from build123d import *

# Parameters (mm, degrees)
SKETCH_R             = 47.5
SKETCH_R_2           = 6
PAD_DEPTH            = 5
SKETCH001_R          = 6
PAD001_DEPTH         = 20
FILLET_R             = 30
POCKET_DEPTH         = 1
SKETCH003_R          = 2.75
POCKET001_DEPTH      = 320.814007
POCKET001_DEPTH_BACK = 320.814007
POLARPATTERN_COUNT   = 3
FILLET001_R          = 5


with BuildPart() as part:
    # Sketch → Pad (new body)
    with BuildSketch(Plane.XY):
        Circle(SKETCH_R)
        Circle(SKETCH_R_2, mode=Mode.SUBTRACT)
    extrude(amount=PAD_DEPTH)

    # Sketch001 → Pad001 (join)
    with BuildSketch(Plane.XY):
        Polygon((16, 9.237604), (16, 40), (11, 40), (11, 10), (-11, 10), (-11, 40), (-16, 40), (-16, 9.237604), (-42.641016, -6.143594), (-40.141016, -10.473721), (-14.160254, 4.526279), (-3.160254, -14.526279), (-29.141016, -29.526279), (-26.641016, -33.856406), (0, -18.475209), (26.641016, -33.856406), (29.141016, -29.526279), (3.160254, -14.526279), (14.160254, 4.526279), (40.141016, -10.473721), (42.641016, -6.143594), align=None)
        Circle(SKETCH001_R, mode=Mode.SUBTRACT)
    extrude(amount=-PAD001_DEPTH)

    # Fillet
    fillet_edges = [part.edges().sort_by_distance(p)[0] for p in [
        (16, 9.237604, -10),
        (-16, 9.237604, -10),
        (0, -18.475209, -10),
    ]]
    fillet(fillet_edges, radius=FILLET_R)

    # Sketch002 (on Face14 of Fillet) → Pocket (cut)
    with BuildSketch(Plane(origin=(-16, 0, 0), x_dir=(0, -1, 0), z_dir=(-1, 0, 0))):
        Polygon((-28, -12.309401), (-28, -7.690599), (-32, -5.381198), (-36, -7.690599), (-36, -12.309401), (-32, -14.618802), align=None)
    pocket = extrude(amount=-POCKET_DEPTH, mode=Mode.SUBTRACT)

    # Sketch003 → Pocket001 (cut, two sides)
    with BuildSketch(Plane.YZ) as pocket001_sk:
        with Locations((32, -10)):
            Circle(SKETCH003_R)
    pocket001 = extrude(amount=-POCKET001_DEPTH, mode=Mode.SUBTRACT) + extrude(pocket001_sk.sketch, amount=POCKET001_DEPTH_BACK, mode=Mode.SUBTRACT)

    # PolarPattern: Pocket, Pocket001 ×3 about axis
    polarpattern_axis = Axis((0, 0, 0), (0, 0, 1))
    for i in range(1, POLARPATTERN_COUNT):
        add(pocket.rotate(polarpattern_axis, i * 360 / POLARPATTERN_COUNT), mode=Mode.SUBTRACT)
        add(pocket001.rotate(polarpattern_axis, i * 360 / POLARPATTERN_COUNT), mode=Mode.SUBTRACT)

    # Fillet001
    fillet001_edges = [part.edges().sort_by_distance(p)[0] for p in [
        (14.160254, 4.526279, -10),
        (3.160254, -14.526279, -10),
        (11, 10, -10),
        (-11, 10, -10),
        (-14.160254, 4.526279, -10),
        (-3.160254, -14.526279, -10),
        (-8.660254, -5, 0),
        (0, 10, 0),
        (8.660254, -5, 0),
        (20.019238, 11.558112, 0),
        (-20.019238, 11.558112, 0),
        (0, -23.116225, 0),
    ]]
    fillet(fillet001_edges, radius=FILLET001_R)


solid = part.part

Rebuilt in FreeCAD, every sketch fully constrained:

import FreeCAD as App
import Part
import Sketcher
Q = App.Units.Quantity


def edges_at(feature, points):
    """Names of the edges that pass closest to the given points."""
    edges = feature.Shape.Edges
    near = lambda p: min(range(len(edges)), key=lambda i: edges[i].distToShape(Part.Vertex(*p))[0])
    return sorted({f"Edge{near(p) + 1}" for p in points})


def add_polygon(sketch, points):
    """Adds a closed chain of lines whose ends are joined by coincident constraints."""
    first, n = sketch.GeometryCount, len(points)
    for a, b in zip(points, points[1:] + points[:1]):
        sketch.addGeometry(Part.LineSegment(App.Vector(*a, 0), App.Vector(*b, 0)), False)
    for i in range(n):
        sketch.addConstraint(Sketcher.Constraint("Coincident", first + i, 2, first + (i + 1) % n, 1))

doc = App.newDocument("Part")
body = doc.addObject("PartDesign::Body", "Body")

# Sketch on XY plane
sketch1 = body.newObject("Sketcher::SketchObject", "Sketch")
sketch1.AttachmentSupport = (doc.getObject("XY_Plane"), [""])
sketch1.MapMode = "FlatFace"
sketch1.addGeometry([
    Part.Circle(App.Vector(0, 0, 0), App.Vector(0, 0, 1), 47.5),
    Part.Circle(App.Vector(0, 0, 0), App.Vector(0, 0, 1), 6),
], False)
sketch1.addConstraint([
    Sketcher.Constraint("Coincident", 0, 3, -1, 1),
    Sketcher.Constraint("Coincident", 1, 3, -1, 1),
    Sketcher.Constraint("Diameter", 0, Q("95 mm")),
    Sketcher.Constraint("Diameter", 1, Q("12 mm")),
])
pad1 = body.newObject("PartDesign::Pad", "Pad")
pad1.Profile = sketch1
pad1.Length = 5

# Sketch on XY plane
sketch2 = body.newObject("Sketcher::SketchObject", "Sketch001")
sketch2.AttachmentSupport = (doc.getObject("XY_Plane"), [""])
sketch2.MapMode = "FlatFace"
add_polygon(sketch2, [(16, 9.237604), (16, 40), (11, 40), (11, 10), (-11, 10), (-11, 40), (-16, 40), (-16, 9.237604), (-42.641016, -6.143594), (-40.141016, -10.473721), (-14.160254, 4.526279), (-3.160254, -14.526279), (-29.141016, -29.526279), (-26.641016, -33.856406), (0, -18.475209), (26.641016, -33.856406), (29.141016, -29.526279), (3.160254, -14.526279), (14.160254, 4.526279), (40.141016, -10.473721), (42.641016, -6.143594)])  # lines 0-20
sketch2.addGeometry(Part.Circle(App.Vector(0, 0, 0), App.Vector(0, 0, 1), 6), False)  # 21
sketch2.addConstraint([
    Sketcher.Constraint("Vertical", 0),
    Sketcher.Constraint("Horizontal", 1),
    Sketcher.Constraint("Vertical", 2),
    Sketcher.Constraint("Horizontal", 3),
    Sketcher.Constraint("Vertical", 4),
    Sketcher.Constraint("Horizontal", 5),
    Sketcher.Constraint("Vertical", 6),
    Sketcher.Constraint("Coincident", 21, 3, -1, 1),
    Sketcher.Constraint("Symmetric", 1, 2, 4, 2, -2),
    Sketcher.Constraint("Symmetric", 12, 2, 14, 2, -2),
    Sketcher.Constraint("Symmetric", 11, 2, 15, 2, -2),
    Sketcher.Constraint("Symmetric", 10, 2, 16, 2, -2),
    Sketcher.Constraint("Symmetric", 9, 2, 17, 2, -2),
    Sketcher.Constraint("Symmetric", 8, 2, 18, 2, -2),
    Sketcher.Constraint("Symmetric", 7, 2, 19, 2, -2),
    Sketcher.Constraint("Symmetric", 6, 2, 20, 2, -2),
    Sketcher.Constraint("PointOnObject", 13, 2, -2),
    Sketcher.Constraint("Perpendicular", 7, 8),
    Sketcher.Constraint("Perpendicular", 8, 9),
    Sketcher.Constraint("Perpendicular", 9, 10),
    Sketcher.Constraint("Perpendicular", 10, 11),
    Sketcher.Constraint("Perpendicular", 11, 12),
    Sketcher.Constraint("Perpendicular", 12, 13),
    Sketcher.Constraint("Equal", 9, 11),
    Sketcher.Constraint("Equal", 8, 12),
    Sketcher.Constraint("Equal", 7, 13),
    Sketcher.Constraint("Diameter", 21, Q("12 mm")),
    Sketcher.Constraint("DistanceX", 1, 2, 1, 1, Q("5 mm")),
    Sketcher.Constraint("DistanceX", 3, 2, 3, 1, Q("22 mm")),
    Sketcher.Constraint("DistanceY", 2, 2, 2, 1, Q("30 mm")),
    Sketcher.Constraint("Angle", 7, Q("-150 deg")),
    Sketcher.Constraint("Distance", 8, Q("5 mm")),
    Sketcher.Constraint("Distance", 9, Q("30 mm")),
    Sketcher.Constraint("DistanceY", -1, 1, 0, 2, Q("40 mm")),
    Sketcher.Constraint("DistanceY", 0, 1, 0, 2, Q("30.762396 mm")),
    Sketcher.Constraint("DistanceY", 8, 2, -1, 1, Q("10.473721 mm")),
])
pad2 = body.newObject("PartDesign::Pad", "Pad001")
pad2.Profile = sketch2
pad2.Length = 20
pad2.Reversed = True
doc.recompute()

fillet = body.newObject("PartDesign::Fillet", "Fillet")
fillet.Base = (pad2, edges_at(pad2, [(16, 9.238, -10), (-16, 9.238, -10), (0, -18.475, -10)]))
fillet.Radius = 30

# Sketch on YZ plane
sketch3 = body.newObject("Sketcher::SketchObject", "Sketch002")
sketch3.AttachmentSupport = (doc.getObject("YZ_Plane"), [""])
sketch3.MapMode = "FlatFace"
sketch3.AttachmentOffset = App.Placement(App.Vector(0, 0, -16), App.Rotation())
add_polygon(sketch3, [(28, -12.309401), (28, -7.690599), (32, -5.381198), (36, -7.690599), (36, -12.309401), (32, -14.618802)])  # lines 0-5
sketch3.addConstraint([
    Sketcher.Constraint("Vertical", 0),
    Sketcher.Constraint("Vertical", 3),
    Sketcher.Constraint("Parallel", 1, 4),
    Sketcher.Constraint("Parallel", 2, 5),
    Sketcher.Constraint("Horizontal", 0, 2, 2, 2),
    Sketcher.Constraint("Horizontal", 3, 2, 5, 2),
    Sketcher.Constraint("Vertical", 1, 2, 4, 2),
    Sketcher.Constraint("Angle", 1, Q("29.999999 deg")),
    Sketcher.Constraint("DistanceX", -1, 1, 0, 2, Q("28 mm")),
    Sketcher.Constraint("DistanceX", -1, 1, 1, 2, Q("32 mm")),
    Sketcher.Constraint("DistanceY", 0, 1, 0, 2, Q("4.618802 mm")),
    Sketcher.Constraint("DistanceY", 0, 2, -1, 1, Q("7.690599 mm")),
])
pocket1 = body.newObject("PartDesign::Pocket", "Pocket")
pocket1.Profile = sketch3
pocket1.Length = 1
pocket1.Reversed = True

# Sketch on YZ plane
sketch4 = body.newObject("Sketcher::SketchObject", "Sketch003")
sketch4.AttachmentSupport = (doc.getObject("YZ_Plane"), [""])
sketch4.MapMode = "FlatFace"
sketch4.addGeometry(Part.Circle(App.Vector(32, -10, 0), App.Vector(0, 0, 1), 2.75), False)
sketch4.addConstraint([
    Sketcher.Constraint("Diameter", 0, Q("5.5 mm")),
    Sketcher.Constraint("DistanceX", -1, 1, 0, 3, Q("32 mm")),
    Sketcher.Constraint("DistanceY", 0, 3, -1, 1, Q("10 mm")),
])
pocket2 = body.newObject("PartDesign::Pocket", "Pocket001")
pocket2.Profile = sketch4
pocket2.Type = "ThroughAll"
pocket2.Midplane = True
doc.recompute()

polarpattern = body.newObject("PartDesign::PolarPattern", "PolarPattern")
polarpattern.Originals = [pocket1, pocket2]
polarpattern.Axis = (doc.getObject("Z_Axis"), [""])
polarpattern.Angle = 360
polarpattern.Occurrences = 3
body.Tip = polarpattern
doc.recompute()

fillet2 = body.newObject("PartDesign::Fillet", "Fillet001")
fillet2.Base = (polarpattern, edges_at(polarpattern, [
    (14.16, 4.526, -10),
    (3.16, -14.526, -10),
    (11, 10, -10),
    (-11, 10, -10),
    (-14.16, 4.526, -10),
    (-3.16, -14.526, -10),
    (-8.66, -5, 0),
    (0, 10, 0),
    (8.66, -5, 0),
    (20.019, 11.558, 0),
    (-20.019, 11.558, 0),
    (0, -23.116, 0),
]))
fillet2.Radius = 5

doc.recompute()
